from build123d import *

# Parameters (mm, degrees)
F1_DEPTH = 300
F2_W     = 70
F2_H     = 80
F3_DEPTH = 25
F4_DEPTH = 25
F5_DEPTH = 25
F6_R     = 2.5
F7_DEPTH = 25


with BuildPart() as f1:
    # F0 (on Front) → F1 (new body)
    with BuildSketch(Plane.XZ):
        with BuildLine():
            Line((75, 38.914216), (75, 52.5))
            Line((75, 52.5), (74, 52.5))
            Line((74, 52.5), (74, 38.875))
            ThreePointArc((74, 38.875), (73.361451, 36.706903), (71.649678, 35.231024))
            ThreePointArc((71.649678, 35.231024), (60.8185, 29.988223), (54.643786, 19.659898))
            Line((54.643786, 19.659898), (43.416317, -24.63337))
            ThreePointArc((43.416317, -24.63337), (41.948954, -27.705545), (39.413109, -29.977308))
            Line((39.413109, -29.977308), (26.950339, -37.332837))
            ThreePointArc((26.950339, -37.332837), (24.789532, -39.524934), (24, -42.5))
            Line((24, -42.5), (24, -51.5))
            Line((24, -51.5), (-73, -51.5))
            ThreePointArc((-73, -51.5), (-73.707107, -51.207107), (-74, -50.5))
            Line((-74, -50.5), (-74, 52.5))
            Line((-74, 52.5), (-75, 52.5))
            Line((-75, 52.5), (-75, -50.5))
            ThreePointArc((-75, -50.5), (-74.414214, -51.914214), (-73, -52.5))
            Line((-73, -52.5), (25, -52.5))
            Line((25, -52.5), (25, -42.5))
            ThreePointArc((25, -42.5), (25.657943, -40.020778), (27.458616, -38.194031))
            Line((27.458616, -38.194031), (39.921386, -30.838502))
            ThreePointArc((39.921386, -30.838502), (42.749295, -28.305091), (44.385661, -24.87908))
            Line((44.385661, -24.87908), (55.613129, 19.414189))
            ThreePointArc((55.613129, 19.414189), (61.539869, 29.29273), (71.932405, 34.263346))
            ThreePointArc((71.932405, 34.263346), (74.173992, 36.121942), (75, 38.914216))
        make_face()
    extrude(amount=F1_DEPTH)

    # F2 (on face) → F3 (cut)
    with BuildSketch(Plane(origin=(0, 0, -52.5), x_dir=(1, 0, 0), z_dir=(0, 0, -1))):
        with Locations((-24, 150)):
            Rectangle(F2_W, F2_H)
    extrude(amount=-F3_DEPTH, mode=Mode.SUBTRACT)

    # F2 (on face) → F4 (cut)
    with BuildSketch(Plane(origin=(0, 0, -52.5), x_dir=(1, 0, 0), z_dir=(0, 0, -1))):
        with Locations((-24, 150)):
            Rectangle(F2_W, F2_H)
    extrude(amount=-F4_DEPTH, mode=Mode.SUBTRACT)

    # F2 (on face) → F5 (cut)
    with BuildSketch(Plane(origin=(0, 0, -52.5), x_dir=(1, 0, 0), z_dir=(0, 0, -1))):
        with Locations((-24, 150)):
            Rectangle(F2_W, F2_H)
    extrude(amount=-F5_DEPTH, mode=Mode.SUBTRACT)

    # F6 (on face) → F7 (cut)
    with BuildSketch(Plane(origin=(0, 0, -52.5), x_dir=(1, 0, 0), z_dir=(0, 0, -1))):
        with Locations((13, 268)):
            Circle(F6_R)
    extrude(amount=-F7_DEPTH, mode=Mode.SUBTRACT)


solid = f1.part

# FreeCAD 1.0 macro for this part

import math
import FreeCAD as App
import Part
import Sketcher
from FreeCAD import Vector


def add_polygon(sketch, points):
    """Adds a closed chain of lines whose ends are joined by coincident constraints."""
    first, n = sketch.GeometryCount, len(points)
    for a, b in zip(points, points[1:] + points[:1]):
        sketch.addGeometry(Part.LineSegment(App.Vector(*a, 0), App.Vector(*b, 0)), False)
    for i in range(n):
        sketch.addConstraint(Sketcher.Constraint("Coincident", first + i, 2, first + (i + 1) % n, 1))

doc = App.newDocument("Part")
params = doc.addObject("Spreadsheet::Sheet", "Params")
for row, (alias, value) in enumerate([
    ("sketch1_radius", "4.000001 mm"),
    ("sketch1_radius2", "21.000001 mm"),
    ("sketch1_radius3", "0.999999 mm"),
    ("sketch1_radius4", "1.999999 mm"),
    ("sketch1_radius5", "5 mm"),
    ("pad1_length", "300 mm"),
    ("sketch2_width", "70 mm"),
    ("sketch2_height", "80 mm"),
    ("pocket1_length", "25 mm"),
    ("sketch3_width", "70 mm"),
    ("sketch3_height", "80 mm"),
    ("pocket2_length", "25 mm"),
    ("sketch4_width", "70 mm"),
    ("sketch4_height", "80 mm"),
    ("pocket3_length", "25 mm"),
    ("sketch5_diameter", "5 mm"),
    ("pocket4_length", "25 mm"),
], start=1):
    params.set(f"A{row}", alias)
    params.set(f"B{row}", "=" + value)
    params.setAlias(f"B{row}", alias)

body = doc.addObject("PartDesign::Body", "Body")

sketch1 = body.newObject("Sketcher::SketchObject", "Sketch")
sketch1.AttachmentSupport = (doc.getObject("XZ_Plane"), [""])
sketch1.MapMode = "FlatFace"
sketch1.addGeometry([
    Part.LineSegment(Vector(75, 38.914216, 0), Vector(75, 52.5, 0)),
    Part.LineSegment(Vector(75, 52.5, 0), Vector(74, 52.5, 0)),
    Part.LineSegment(Vector(74, 52.5, 0), Vector(74, 38.875, 0)),
    Part.ArcOfCircle(Part.Circle(Vector(69.999999, 38.875001, 0), Vector(0, 0, 1), 4.000001), math.radians(-65.643075), math.radians(-0.000013)),
    Part.ArcOfCircle(Part.Circle(Vector(75.000001, 14.499999, 0), Vector(0, 0, 1), 21.000001), math.radians(99.180151), math.radians(165.776236)),
    Part.LineSegment(Vector(54.643786, 19.659898, 0), Vector(43.416317, -24.63337, 0)),
    Part.ArcOfCircle(Part.Circle(Vector(34.999998, -22.499999, 0), Vector(0, 0, 1), 8.682493), math.radians(-59.450878), math.radians(-14.223764)),
    Part.LineSegment(Vector(39.413109, -29.977308, 0), Vector(26.950339, -37.332837, 0)),
    Part.ArcOfCircle(Part.Circle(Vector(30.000005, -42.500002, 0), Vector(0, 0, 1), 6.000005), math.radians(120.549145), math.radians(179.999979)),
    Part.LineSegment(Vector(24, -42.5, 0), Vector(24, -51.5, 0)),
    Part.LineSegment(Vector(24, -51.5, 0), Vector(-73, -51.5, 0)),
    Part.ArcOfCircle(Part.Circle(Vector(-73.000001, -50.500001, 0), Vector(0, 0, 1), 0.999999), math.radians(179.999957), math.radians(270.000043)),
    Part.LineSegment(Vector(-74, -50.5, 0), Vector(-74, 52.5, 0)),
    Part.LineSegment(Vector(-74, 52.5, 0), Vector(-75, 52.5, 0)),
    Part.LineSegment(Vector(-75, 52.5, 0), Vector(-75, -50.5, 0)),
    Part.ArcOfCircle(Part.Circle(Vector(-73.000001, -50.500001, 0), Vector(0, 0, 1), 1.999999), math.radians(179.999957), math.radians(270.000043)),
    Part.LineSegment(Vector(-73, -52.5, 0), Vector(25, -52.5, 0)),
    Part.LineSegment(Vector(25, -52.5, 0), Vector(25, -42.5, 0)),
    Part.ArcOfCircle(Part.Circle(Vector(30, -42.5, 0), Vector(0, 0, 1), 5), math.radians(120.549117), math.radians(180.000001)),
    Part.LineSegment(Vector(27.458616, -38.194031, 0), Vector(39.921386, -30.838502, 0)),
    Part.ArcOfCircle(Part.Circle(Vector(35, -22.5, 0), Vector(0, 0, 1), 9.682492), math.radians(-59.450884), math.radians(-14.223765)),
    Part.LineSegment(Vector(44.385661, -24.87908, 0), Vector(55.613129, 19.414189, 0)),
    Part.ArcOfCircle(Part.Circle(Vector(75.000001, 14.499998, 0), Vector(0, 0, 1), 20.000002), math.radians(98.822841), math.radians(165.776231)),
    Part.ArcOfCircle(Part.Circle(Vector(69.999999, 38.875, 0), Vector(0, 0, 1), 5.000155), math.radians(-67.265015), math.radians(0.449368)),
], False)
sketch1.addConstraint([
    Sketcher.Constraint("Coincident", 0, 2, 1, 1),
    Sketcher.Constraint("Coincident", 1, 2, 2, 1),
    Sketcher.Constraint("Tangent", 2, 2, 3, 2),
    Sketcher.Constraint("Coincident", 3, 1, 4, 1),
    Sketcher.Constraint("Tangent", 4, 2, 5, 1),
    Sketcher.Constraint("Tangent", 5, 2, 6, 2),
    Sketcher.Constraint("Tangent", 6, 1, 7, 1),
    Sketcher.Constraint("Tangent", 7, 2, 8, 1),
    Sketcher.Constraint("Tangent", 8, 2, 9, 1),
    Sketcher.Constraint("Coincident", 9, 2, 10, 1),
    Sketcher.Constraint("Tangent", 10, 2, 11, 2),
    Sketcher.Constraint("Tangent", 11, 1, 12, 1),
    Sketcher.Constraint("Coincident", 12, 2, 13, 1),
    Sketcher.Constraint("Coincident", 13, 2, 14, 1),
    Sketcher.Constraint("Tangent", 14, 2, 15, 1),
    Sketcher.Constraint("Tangent", 15, 2, 16, 1),
    Sketcher.Constraint("Coincident", 16, 2, 17, 1),
    Sketcher.Constraint("Tangent", 17, 2, 18, 2),
    Sketcher.Constraint("Tangent", 18, 1, 19, 1),
    Sketcher.Constraint("Tangent", 19, 2, 20, 1),
    Sketcher.Constraint("Tangent", 20, 2, 21, 1),
    Sketcher.Constraint("Tangent", 21, 2, 22, 2),
    Sketcher.Constraint("Coincident", 22, 1, 23, 1),
    Sketcher.Constraint("Coincident", 23, 2, 0, 1),
    Sketcher.Constraint("Vertical", 0),
    Sketcher.Constraint("Horizontal", 1),
    Sketcher.Constraint("Vertical", 2),
    Sketcher.Constraint("Vertical", 9),
    Sketcher.Constraint("Horizontal", 10),
    Sketcher.Constraint("Vertical", 12),
    Sketcher.Constraint("Horizontal", 13),
    Sketcher.Constraint("Vertical", 14),
    Sketcher.Constraint("Horizontal", 16),
    Sketcher.Constraint("Vertical", 17),
    Sketcher.Constraint("Coincident", 15, 3, 11, 3),
    Sketcher.Constraint("Coincident", 18, 3, 8, 3),
    Sketcher.Constraint("Coincident", 20, 3, 6, 3),
    Sketcher.Constraint("Coincident", 22, 3, 4, 3),
    Sketcher.Constraint("Coincident", 23, 3, 3, 3),
    Sketcher.Constraint("Symmetric", 1, 2, 12, 2, -2),
    Sketcher.Constraint("Parallel", 7, 19),
    Sketcher.Constraint("Parallel", 5, 21),
    Sketcher.Constraint("Vertical", 22, 3, 0, 2),
    Sketcher.Constraint("Equal", 1, 13),
    Sketcher.Constraint("Radius", 3, 4.000001),
    Sketcher.Constraint("Radius", 4, 21.000001),
    Sketcher.Constraint("Radius", 11, 0.999999),
    Sketcher.Constraint("Radius", 15, 1.999999),
    Sketcher.Constraint("Radius", 18, 5.0),
    Sketcher.Constraint("Radius", 22, 20.000002),
    Sketcher.Constraint("DistanceX", 10, 2, 10, 1, 97.0),
    Sketcher.Constraint("DistanceY", 9, 2, 9, 1, 9.0),
    Sketcher.Constraint("DistanceY", 12, 1, 12, 2, 103.0),
    Sketcher.Constraint("DistanceX", -1, 1, 3, 3, 69.999999),
    Sketcher.Constraint("DistanceX", -1, 1, 6, 3, 34.999998),
    Sketcher.Constraint("DistanceY", 6, 3, 4, 3, 36.999998),
    Sketcher.Constraint("DistanceY", 8, 3, 4, 3, 57.000001),
    Sketcher.Constraint("DistanceY", -1, 1, 4, 3, 14.499999),
    Sketcher.Constraint("DistanceY", 2, 2, 2, 1, 13.625),
    Sketcher.Constraint("Radius", 6, 8.682493),
    Sketcher.Constraint("Radius", 23, 5.000155),
])
sketch1.setExpression("Constraints[44]", "Params.sketch1_radius")
sketch1.setExpression("Constraints[45]", "Params.sketch1_radius2")
sketch1.setExpression("Constraints[46]", "Params.sketch1_radius3")
sketch1.setExpression("Constraints[47]", "Params.sketch1_radius4")
sketch1.setExpression("Constraints[48]", "Params.sketch1_radius5")
pad1 = body.newObject("PartDesign::Pad", "Pad")
pad1.Profile = sketch1
pad1.setExpression("Length", "Params.pad1_length")

sketch2 = body.newObject("Sketcher::SketchObject", "Sketch001")
sketch2.AttachmentSupport = (doc.getObject("XY_Plane"), [""])
sketch2.MapMode = "FlatFace"
sketch2.AttachmentOffset = App.Placement(Vector(0, 0, -52.5), App.Rotation())
add_polygon(sketch2, [(-59, -190), (-59, -110), (11, -110), (11, -190)])
sketch2.addConstraint([
    Sketcher.Constraint("Vertical", 0),
    Sketcher.Constraint("Horizontal", 1),
    Sketcher.Constraint("Vertical", 2),
    Sketcher.Constraint("Horizontal", 3),
    Sketcher.Constraint("DistanceX", 1, 1, 1, 2, 70.0),
    Sketcher.Constraint("DistanceY", 0, 1, 0, 2, 80.0),
    Sketcher.Constraint("DistanceX", 0, 2, -1, 1, 59.0),
    Sketcher.Constraint("DistanceY", 0, 2, -1, 1, 110.0),
])
sketch2.setExpression("Constraints[8]", "Params.sketch2_width")
sketch2.setExpression("Constraints[9]", "Params.sketch2_height")
pocket1 = body.newObject("PartDesign::Pocket", "Pocket")
pocket1.Profile = sketch2
pocket1.setExpression("Length", "Params.pocket1_length")
pocket1.Reversed = True

sketch3 = body.newObject("Sketcher::SketchObject", "Sketch002")
sketch3.AttachmentSupport = (doc.getObject("XY_Plane"), [""])
sketch3.MapMode = "FlatFace"
sketch3.AttachmentOffset = App.Placement(Vector(0, 0, -52.5), App.Rotation())
add_polygon(sketch3, [(-59, -190), (-59, -110), (11, -110), (11, -190)])
sketch3.addConstraint([
    Sketcher.Constraint("Vertical", 0),
    Sketcher.Constraint("Horizontal", 1),
    Sketcher.Constraint("Vertical", 2),
    Sketcher.Constraint("Horizontal", 3),
    Sketcher.Constraint("DistanceX", 1, 1, 1, 2, 70.0),
    Sketcher.Constraint("DistanceY", 0, 1, 0, 2, 80.0),
    Sketcher.Constraint("DistanceX", 0, 2, -1, 1, 59.0),
    Sketcher.Constraint("DistanceY", 0, 2, -1, 1, 110.0),
])
sketch3.setExpression("Constraints[8]", "Params.sketch3_width")
sketch3.setExpression("Constraints[9]", "Params.sketch3_height")
pocket2 = body.newObject("PartDesign::Pocket", "Pocket001")
pocket2.Profile = sketch3
pocket2.setExpression("Length", "Params.pocket2_length")
pocket2.Reversed = True

sketch4 = body.newObject("Sketcher::SketchObject", "Sketch003")
sketch4.AttachmentSupport = (doc.getObject("XY_Plane"), [""])
sketch4.MapMode = "FlatFace"
sketch4.AttachmentOffset = App.Placement(Vector(0, 0, -52.5), App.Rotation())
add_polygon(sketch4, [(-59, -190), (-59, -110), (11, -110), (11, -190)])
sketch4.addConstraint([
    Sketcher.Constraint("Vertical", 0),
    Sketcher.Constraint("Horizontal", 1),
    Sketcher.Constraint("Vertical", 2),
    Sketcher.Constraint("Horizontal", 3),
    Sketcher.Constraint("DistanceX", 1, 1, 1, 2, 70.0),
    Sketcher.Constraint("DistanceY", 0, 1, 0, 2, 80.0),
    Sketcher.Constraint("DistanceX", 0, 2, -1, 1, 59.0),
    Sketcher.Constraint("DistanceY", 0, 2, -1, 1, 110.0),
])
sketch4.setExpression("Constraints[8]", "Params.sketch4_width")
sketch4.setExpression("Constraints[9]", "Params.sketch4_height")
pocket3 = body.newObject("PartDesign::Pocket", "Pocket002")
pocket3.Profile = sketch4
pocket3.setExpression("Length", "Params.pocket3_length")
pocket3.Reversed = True

sketch5 = body.newObject("Sketcher::SketchObject", "Sketch004")
sketch5.AttachmentSupport = (doc.getObject("XY_Plane"), [""])
sketch5.MapMode = "FlatFace"
sketch5.AttachmentOffset = App.Placement(Vector(0, 0, -52.5), App.Rotation())
sketch5.addGeometry(Part.Circle(Vector(13, -268, 0), Vector(0, 0, 1), 2.5), False)
sketch5.addConstraint([
    Sketcher.Constraint("Diameter", 0, 5.0),
    Sketcher.Constraint("DistanceX", -1, 1, 0, 3, 13.0),
    Sketcher.Constraint("DistanceY", 0, 3, -1, 1, 268.0),
])
sketch5.setExpression("Constraints[0]", "Params.sketch5_diameter")
pocket4 = body.newObject("PartDesign::Pocket", "Pocket003")
pocket4.Profile = sketch5
pocket4.setExpression("Length", "Params.pocket4_length")
pocket4.Reversed = True

doc.recompute()
